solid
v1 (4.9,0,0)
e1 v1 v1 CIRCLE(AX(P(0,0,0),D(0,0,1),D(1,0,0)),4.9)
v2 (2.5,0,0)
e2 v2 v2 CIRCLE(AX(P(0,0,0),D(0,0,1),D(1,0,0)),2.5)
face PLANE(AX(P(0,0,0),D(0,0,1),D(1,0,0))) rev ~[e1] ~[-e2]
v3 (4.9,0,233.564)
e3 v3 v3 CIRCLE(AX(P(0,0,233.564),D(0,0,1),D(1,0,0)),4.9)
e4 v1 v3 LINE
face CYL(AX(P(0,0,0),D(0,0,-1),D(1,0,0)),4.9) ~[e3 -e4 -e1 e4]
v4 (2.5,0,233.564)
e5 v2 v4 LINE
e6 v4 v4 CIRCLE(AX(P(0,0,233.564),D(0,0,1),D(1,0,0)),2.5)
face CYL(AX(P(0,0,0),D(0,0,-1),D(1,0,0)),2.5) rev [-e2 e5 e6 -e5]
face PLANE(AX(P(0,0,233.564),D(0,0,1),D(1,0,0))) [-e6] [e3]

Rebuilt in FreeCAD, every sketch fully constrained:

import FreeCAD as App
import Part
import Sketcher

V = App.Vector
Q = App.Units.Quantity

doc = App.newDocument("Part")
body = doc.addObject("PartDesign::Body", "Body")

# Sketch on XY plane
sketch1 = doc.addObject("Sketcher::SketchObject", "Sketch")
body.addObject(sketch1)
sketch1.AttachmentSupport = (doc.XY_Plane, [""])
sketch1.MapMode = "FlatFace"
sketch1.addGeometry(Part.Circle(V(0, 0, 0), V(0, 0, 1), 4.9), False)
sketch1.addGeometry(Part.Circle(V(0, 0, 0), V(0, 0, 1), 2.5), False)
sketch1.addConstraint(Sketcher.Constraint("Coincident", 0, 3, -1, 1))
sketch1.addConstraint(Sketcher.Constraint("Coincident", 1, 3, -1, 1))
sketch1.addConstraint(Sketcher.Constraint("Diameter", 0, Q("9.8 mm")))
sketch1.addConstraint(Sketcher.Constraint("Diameter", 1, Q("5 mm")))
pad1 = doc.addObject("PartDesign::Pad", "Pad")
body.addObject(pad1)
pad1.Profile = sketch1
pad1.Length = 233.564

doc.recompute()
